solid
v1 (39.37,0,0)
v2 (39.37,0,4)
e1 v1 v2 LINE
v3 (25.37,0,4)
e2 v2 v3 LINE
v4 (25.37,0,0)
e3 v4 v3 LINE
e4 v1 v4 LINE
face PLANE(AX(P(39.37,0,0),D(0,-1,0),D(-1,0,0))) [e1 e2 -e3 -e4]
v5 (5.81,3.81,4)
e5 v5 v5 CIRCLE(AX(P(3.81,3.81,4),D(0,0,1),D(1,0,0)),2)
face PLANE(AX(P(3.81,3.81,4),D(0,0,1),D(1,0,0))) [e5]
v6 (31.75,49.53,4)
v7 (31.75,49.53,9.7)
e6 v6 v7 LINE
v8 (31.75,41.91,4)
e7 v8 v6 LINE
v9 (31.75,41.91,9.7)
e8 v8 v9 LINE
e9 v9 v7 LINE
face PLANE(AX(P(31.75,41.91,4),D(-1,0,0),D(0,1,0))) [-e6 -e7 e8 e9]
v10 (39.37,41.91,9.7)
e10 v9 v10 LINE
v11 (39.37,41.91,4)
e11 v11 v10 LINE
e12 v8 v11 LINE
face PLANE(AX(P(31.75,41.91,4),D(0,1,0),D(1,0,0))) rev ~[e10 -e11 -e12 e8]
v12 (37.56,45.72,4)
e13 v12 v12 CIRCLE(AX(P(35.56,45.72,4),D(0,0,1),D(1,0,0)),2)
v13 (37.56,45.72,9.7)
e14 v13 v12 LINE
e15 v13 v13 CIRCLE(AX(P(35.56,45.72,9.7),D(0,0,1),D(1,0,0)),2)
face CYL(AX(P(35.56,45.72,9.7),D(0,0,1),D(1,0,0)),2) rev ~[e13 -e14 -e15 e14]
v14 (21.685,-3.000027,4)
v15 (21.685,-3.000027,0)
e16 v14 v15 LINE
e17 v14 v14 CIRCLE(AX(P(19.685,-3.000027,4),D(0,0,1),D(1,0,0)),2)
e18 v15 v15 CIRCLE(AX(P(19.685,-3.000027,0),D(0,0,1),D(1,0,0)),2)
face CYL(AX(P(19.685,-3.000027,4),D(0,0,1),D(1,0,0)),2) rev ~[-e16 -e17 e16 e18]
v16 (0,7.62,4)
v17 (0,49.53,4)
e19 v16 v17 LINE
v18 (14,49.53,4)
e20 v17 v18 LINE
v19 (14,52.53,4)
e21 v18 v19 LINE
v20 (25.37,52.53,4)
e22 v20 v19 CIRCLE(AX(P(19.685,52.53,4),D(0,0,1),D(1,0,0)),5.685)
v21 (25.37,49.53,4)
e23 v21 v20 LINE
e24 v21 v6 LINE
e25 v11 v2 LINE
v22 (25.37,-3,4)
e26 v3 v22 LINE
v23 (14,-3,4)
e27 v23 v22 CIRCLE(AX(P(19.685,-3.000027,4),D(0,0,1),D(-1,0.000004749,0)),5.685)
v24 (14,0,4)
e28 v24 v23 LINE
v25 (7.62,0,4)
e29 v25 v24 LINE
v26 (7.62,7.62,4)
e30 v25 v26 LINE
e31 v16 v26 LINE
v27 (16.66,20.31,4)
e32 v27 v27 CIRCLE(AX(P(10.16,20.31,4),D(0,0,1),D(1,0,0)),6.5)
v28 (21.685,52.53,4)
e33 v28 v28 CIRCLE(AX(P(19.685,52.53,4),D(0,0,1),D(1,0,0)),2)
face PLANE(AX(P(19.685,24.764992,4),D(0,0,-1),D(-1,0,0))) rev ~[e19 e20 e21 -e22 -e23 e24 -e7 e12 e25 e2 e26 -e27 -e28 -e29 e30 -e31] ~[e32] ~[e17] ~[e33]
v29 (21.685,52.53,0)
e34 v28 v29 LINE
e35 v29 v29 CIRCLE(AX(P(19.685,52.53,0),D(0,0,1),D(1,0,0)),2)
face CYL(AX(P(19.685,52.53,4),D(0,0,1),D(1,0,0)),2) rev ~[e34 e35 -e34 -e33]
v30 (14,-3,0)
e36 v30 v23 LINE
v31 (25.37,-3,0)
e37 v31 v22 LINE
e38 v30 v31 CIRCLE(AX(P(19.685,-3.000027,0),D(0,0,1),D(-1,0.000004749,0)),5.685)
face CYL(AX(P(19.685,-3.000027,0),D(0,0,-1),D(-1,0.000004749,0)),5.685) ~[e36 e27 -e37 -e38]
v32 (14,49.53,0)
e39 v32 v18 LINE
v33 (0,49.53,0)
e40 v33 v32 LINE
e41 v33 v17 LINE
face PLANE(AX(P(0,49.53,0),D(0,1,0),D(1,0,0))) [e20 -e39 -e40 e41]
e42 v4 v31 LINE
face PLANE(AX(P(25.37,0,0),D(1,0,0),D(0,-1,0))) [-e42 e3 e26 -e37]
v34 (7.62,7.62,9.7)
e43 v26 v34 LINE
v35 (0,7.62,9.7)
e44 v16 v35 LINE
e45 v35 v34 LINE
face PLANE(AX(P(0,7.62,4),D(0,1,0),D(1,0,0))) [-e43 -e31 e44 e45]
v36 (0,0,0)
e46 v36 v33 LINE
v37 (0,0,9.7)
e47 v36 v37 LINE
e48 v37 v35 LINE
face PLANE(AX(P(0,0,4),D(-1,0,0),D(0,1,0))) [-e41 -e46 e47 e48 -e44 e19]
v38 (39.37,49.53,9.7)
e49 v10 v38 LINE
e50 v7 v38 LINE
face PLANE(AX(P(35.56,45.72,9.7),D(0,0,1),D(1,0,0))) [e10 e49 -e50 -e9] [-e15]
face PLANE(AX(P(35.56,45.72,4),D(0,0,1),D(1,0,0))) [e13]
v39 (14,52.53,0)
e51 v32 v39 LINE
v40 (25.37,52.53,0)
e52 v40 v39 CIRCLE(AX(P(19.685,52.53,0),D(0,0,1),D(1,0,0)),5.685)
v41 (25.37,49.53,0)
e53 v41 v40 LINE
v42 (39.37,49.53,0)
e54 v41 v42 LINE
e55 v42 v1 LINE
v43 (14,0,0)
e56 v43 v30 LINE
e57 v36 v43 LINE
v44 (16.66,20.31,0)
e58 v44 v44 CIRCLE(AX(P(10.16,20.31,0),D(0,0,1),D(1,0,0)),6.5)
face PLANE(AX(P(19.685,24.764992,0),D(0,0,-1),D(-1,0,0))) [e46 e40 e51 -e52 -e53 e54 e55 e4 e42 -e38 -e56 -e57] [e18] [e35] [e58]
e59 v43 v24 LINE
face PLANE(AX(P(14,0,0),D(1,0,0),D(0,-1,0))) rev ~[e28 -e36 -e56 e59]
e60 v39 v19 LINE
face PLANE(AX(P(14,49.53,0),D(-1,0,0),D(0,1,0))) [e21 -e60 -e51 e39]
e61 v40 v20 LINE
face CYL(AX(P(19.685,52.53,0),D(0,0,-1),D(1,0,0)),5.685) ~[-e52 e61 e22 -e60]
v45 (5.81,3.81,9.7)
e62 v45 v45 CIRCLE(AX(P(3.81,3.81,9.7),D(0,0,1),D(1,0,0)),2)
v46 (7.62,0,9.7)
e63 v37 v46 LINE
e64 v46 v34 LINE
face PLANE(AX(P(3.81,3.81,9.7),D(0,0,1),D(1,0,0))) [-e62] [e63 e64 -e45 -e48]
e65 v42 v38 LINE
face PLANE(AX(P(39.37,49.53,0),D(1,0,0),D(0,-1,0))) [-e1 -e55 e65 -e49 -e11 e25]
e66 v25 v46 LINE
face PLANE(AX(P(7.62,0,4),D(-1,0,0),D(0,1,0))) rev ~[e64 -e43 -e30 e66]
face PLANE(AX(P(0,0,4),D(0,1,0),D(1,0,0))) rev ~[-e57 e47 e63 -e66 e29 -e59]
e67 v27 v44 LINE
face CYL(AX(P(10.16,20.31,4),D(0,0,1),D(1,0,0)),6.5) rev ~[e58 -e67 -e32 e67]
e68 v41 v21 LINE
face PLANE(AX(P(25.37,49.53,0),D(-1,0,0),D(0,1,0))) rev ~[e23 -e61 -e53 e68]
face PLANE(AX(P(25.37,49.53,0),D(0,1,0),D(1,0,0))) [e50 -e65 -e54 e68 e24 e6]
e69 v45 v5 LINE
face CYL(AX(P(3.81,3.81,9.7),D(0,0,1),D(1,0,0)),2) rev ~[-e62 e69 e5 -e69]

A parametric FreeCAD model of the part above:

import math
import FreeCAD as App
import Part
import Sketcher
from FreeCAD import Vector

doc = App.newDocument("Part")
body = doc.addObject("PartDesign::Body", "Body")

# Sketch on XY plane
sketch1 = body.newObject("Sketcher::SketchObject", "Sketch")
sketch1.AttachmentSupport = (doc.getObject("XY_Plane"), [""])
sketch1.MapMode = "FlatFace"
sketch1.addGeometry([
    Part.LineSegment(Vector(0, 49.5, 0), Vector(0, 0, 0)),  # 0
    Part.LineSegment(Vector(0, 0, 0), Vector(14, 0, 0)),  # 1
    Part.LineSegment(Vector(14, 0, 0), Vector(14, -3, 0)),  # 2
    Part.ArcOfCircle(Part.Circle(Vector(19.7, -3, 0), Vector(0, 0, 1), 5.7), math.radians(180), math.radians(360)),  # 3
    Part.LineSegment(Vector(25.4, -3, 0), Vector(25.4, 0, 0)),  # 4
    Part.LineSegment(Vector(25.4, 0, 0), Vector(39.4, 0, 0)),  # 5
    Part.LineSegment(Vector(39.4, 0, 0), Vector(39.4, 49.5, 0)),  # 6
    Part.LineSegment(Vector(39.4, 49.5, 0), Vector(25.4, 49.5, 0)),  # 7
    Part.LineSegment(Vector(25.4, 49.5, 0), Vector(25.4, 52.5, 0)),  # 8
    Part.ArcOfCircle(Part.Circle(Vector(19.7, 52.5, 0), Vector(0, 0, 1), 5.7), math.radians(0), math.radians(180)),  # 9
    Part.LineSegment(Vector(14, 52.5, 0), Vector(14, 49.5, 0)),  # 10
    Part.LineSegment(Vector(14, 49.5, 0), Vector(0, 49.5, 0)),  # 11
], False)
sketch1.addConstraint([
    Sketcher.Constraint("Coincident", 0, 2, 1, 1),
    Sketcher.Constraint("Coincident", 1, 2, 2, 1),
    Sketcher.Constraint("Coincident", 2, 2, 3, 1),
    Sketcher.Constraint("Coincident", 3, 2, 4, 1),
    Sketcher.Constraint("Coincident", 4, 2, 5, 1),
    Sketcher.Constraint("Coincident", 5, 2, 6, 1),
    Sketcher.Constraint("Coincident", 6, 2, 7, 1),
    Sketcher.Constraint("Coincident", 7, 2, 8, 1),
    Sketcher.Constraint("Tangent", 8, 2, 9, 1),
    Sketcher.Constraint("Tangent", 9, 2, 10, 1),
    Sketcher.Constraint("Coincident", 10, 2, 11, 1),
    Sketcher.Constraint("Coincident", 11, 2, 0, 1),
    Sketcher.Constraint("Vertical", 0),
    Sketcher.Constraint("Horizontal", 1),
    Sketcher.Constraint("Vertical", 2),
    Sketcher.Constraint("Vertical", 4),
    Sketcher.Constraint("Horizontal", 5),
    Sketcher.Constraint("Vertical", 6),
    Sketcher.Constraint("Horizontal", 7),
    Sketcher.Constraint("Vertical", 8),
    Sketcher.Constraint("Vertical", 10),
    Sketcher.Constraint("Horizontal", 11),
    Sketcher.Constraint("Coincident", 0, 2, -1, 1),
    Sketcher.Constraint("Equal", 3, 9),
    Sketcher.Constraint("PointOnObject", 4, 2, -1),
    Sketcher.Constraint("Horizontal", 2, 2, 3, 2),
    Sketcher.Constraint("Horizontal", 7, 2, 10, 2),
    Sketcher.Constraint("Vertical", 3, 3, 9, 3),
    Sketcher.Constraint("Equal", 1, 5),
    Sketcher.Constraint("Equal", 4, 8),
    Sketcher.Constraint("DistanceX", 1, 1, 1, 2, 14.0),
    Sketcher.Constraint("DistanceY", 2, 2, 2, 1, 3.0),
    Sketcher.Constraint("Radius", 3, 5.685),
    Sketcher.Constraint("DistanceY", 0, 2, 0, 1, 49.53),
    Sketcher.Constraint("DistanceY", 3, 3, -1, 1, 3.000027),
])
pad1 = body.newObject("PartDesign::Pad", "Pad")
pad1.Profile = sketch1
pad1.Length = 4

# Sketch on XY plane
sketch2 = body.newObject("Sketcher::SketchObject", "Sketch001")
sketch2.AttachmentSupport = (doc.getObject("XY_Plane"), [""])
sketch2.MapMode = "FlatFace"
sketch2.AttachmentOffset = App.Placement(Vector(0, 0, 4), App.Rotation())
sketch2.addGeometry(Part.Circle(Vector(10, 20, 0), Vector(0, 0, 1), 6), False)
sketch2.addConstraint([
    Sketcher.Constraint("Diameter", 0, 13.0),
    Sketcher.Constraint("DistanceX", -1, 1, 0, 3, 10.16),
    Sketcher.Constraint("DistanceY", -1, 1, 0, 3, 20.31),
])
pocket1 = body.newObject("PartDesign::Pocket", "Pocket")
pocket1.Profile = sketch2
pocket1.Length = 5

# Sketch on XY plane
sketch3 = body.newObject("Sketcher::SketchObject", "Sketch002")
sketch3.AttachmentSupport = (doc.getObject("XY_Plane"), [""])
sketch3.MapMode = "FlatFace"
sketch3.AttachmentOffset = App.Placement(Vector(0, 0, 4), App.Rotation())
sketch3.addGeometry([
    Part.LineSegment(Vector(0, 8, 0), Vector(0, 0, 0)),  # 0
    Part.LineSegment(Vector(0, 0, 0), Vector(8, 0, 0)),  # 1
    Part.LineSegment(Vector(8, 0, 0), Vector(8, 8, 0)),  # 2
    Part.LineSegment(Vector(8, 8, 0), Vector(0, 8, 0)),  # 3
    Part.LineSegment(Vector(32, 50, 0), Vector(32, 42, 0)),  # 4
    Part.LineSegment(Vector(32, 42, 0), Vector(39, 42, 0)),  # 5
    Part.LineSegment(Vector(39, 42, 0), Vector(39, 50, 0)),  # 6
    Part.LineSegment(Vector(39, 50, 0), Vector(32, 50, 0)),  # 7
], False)
sketch3.addConstraint([
    Sketcher.Constraint("Coincident", 0, 2, 1, 1),
    Sketcher.Constraint("Coincident", 1, 2, 2, 1),
    Sketcher.Constraint("Coincident", 2, 2, 3, 1),
    Sketcher.Constraint("Coincident", 3, 2, 0, 1),
    Sketcher.Constraint("Coincident", 4, 2, 5, 1),
    Sketcher.Constraint("Coincident", 5, 2, 6, 1),
    Sketcher.Constraint("Coincident", 6, 2, 7, 1),
    Sketcher.Constraint("Coincident", 7, 2, 4, 1),
    Sketcher.Constraint("Vertical", 0),
    Sketcher.Constraint("Horizontal", 1),
    Sketcher.Constraint("Vertical", 2),
    Sketcher.Constraint("Horizontal", 3),
    Sketcher.Constraint("Vertical", 4),
    Sketcher.Constraint("Horizontal", 5),
    Sketcher.Constraint("Vertical", 6),
    Sketcher.Constraint("Horizontal", 7),
    Sketcher.Constraint("Coincident", 0, 2, -1, 1),
    Sketcher.Constraint("Equal", 3, 5),
    Sketcher.Constraint("Equal", 7, 0),
    Sketcher.Constraint("Equal", 2, 4),
    Sketcher.Constraint("DistanceX", 1, 1, 1, 2, 7.62),
    Sketcher.Constraint("DistanceX", -1, 1, 4, 2, 31.75),
    Sketcher.Constraint("DistanceY", -1, 1, 4, 2, 41.91),
])
pad2 = body.newObject("PartDesign::Pad", "Pad001")
pad2.Profile = sketch3
pad2.Length = 5.7

# Sketch on XY plane
sketch4 = body.newObject("Sketcher::SketchObject", "Sketch003")
sketch4.AttachmentSupport = (doc.getObject("XY_Plane"), [""])
sketch4.MapMode = "FlatFace"
sketch4.AttachmentOffset = App.Placement(Vector(0, 0, 9.7), App.Rotation())
sketch4.addGeometry([
    Part.Circle(Vector(3.8, 3.8, 0), Vector(0, 0, 1), 2),
    Part.Circle(Vector(35.6, 45.7, 0), Vector(0, 0, 1), 2),
], False)
sketch4.addConstraint([
    Sketcher.Constraint("Equal", 0, 1),
    Sketcher.Constraint("Diameter", 0, 4.0),
    Sketcher.Constraint("DistanceX", -1, 1, 0, 3, 3.81),
    Sketcher.Constraint("DistanceY", -1, 1, 0, 3, 3.81),
    Sketcher.Constraint("DistanceX", -1, 1, 1, 3, 35.56),
    Sketcher.Constraint("DistanceY", -1, 1, 1, 3, 45.72),
])
pocket2 = body.newObject("PartDesign::Pocket", "Pocket001")
pocket2.Profile = sketch4
pocket2.Length = 5.7

# Sketch on XY plane
sketch5 = body.newObject("Sketcher::SketchObject", "Sketch004")
sketch5.AttachmentSupport = (doc.getObject("XY_Plane"), [""])
sketch5.MapMode = "FlatFace"
sketch5.AttachmentOffset = App.Placement(Vector(0, 0, 4), App.Rotation())
sketch5.addGeometry([
    Part.Circle(Vector(19.7, -3, 0), Vector(0, 0, 1), 2),
    Part.Circle(Vector(19.7, 52.5, 0), Vector(0, 0, 1), 2),
], False)
sketch5.addConstraint([
    Sketcher.Constraint("Equal", 0, 1),
    Sketcher.Constraint("Vertical", 0, 3, 1, 3),
    Sketcher.Constraint("Diameter", 0, 4.0),
    Sketcher.Constraint("DistanceY", -1, 1, 1, 3, 52.53),
    Sketcher.Constraint("DistanceX", -1, 1, 0, 3, 19.685),
    Sketcher.Constraint("DistanceY", 0, 3, -1, 1, 3.000027),
])
pocket3 = body.newObject("PartDesign::Pocket", "Pocket002")
pocket3.Profile = sketch5
pocket3.Length = 5

doc.recompute()
